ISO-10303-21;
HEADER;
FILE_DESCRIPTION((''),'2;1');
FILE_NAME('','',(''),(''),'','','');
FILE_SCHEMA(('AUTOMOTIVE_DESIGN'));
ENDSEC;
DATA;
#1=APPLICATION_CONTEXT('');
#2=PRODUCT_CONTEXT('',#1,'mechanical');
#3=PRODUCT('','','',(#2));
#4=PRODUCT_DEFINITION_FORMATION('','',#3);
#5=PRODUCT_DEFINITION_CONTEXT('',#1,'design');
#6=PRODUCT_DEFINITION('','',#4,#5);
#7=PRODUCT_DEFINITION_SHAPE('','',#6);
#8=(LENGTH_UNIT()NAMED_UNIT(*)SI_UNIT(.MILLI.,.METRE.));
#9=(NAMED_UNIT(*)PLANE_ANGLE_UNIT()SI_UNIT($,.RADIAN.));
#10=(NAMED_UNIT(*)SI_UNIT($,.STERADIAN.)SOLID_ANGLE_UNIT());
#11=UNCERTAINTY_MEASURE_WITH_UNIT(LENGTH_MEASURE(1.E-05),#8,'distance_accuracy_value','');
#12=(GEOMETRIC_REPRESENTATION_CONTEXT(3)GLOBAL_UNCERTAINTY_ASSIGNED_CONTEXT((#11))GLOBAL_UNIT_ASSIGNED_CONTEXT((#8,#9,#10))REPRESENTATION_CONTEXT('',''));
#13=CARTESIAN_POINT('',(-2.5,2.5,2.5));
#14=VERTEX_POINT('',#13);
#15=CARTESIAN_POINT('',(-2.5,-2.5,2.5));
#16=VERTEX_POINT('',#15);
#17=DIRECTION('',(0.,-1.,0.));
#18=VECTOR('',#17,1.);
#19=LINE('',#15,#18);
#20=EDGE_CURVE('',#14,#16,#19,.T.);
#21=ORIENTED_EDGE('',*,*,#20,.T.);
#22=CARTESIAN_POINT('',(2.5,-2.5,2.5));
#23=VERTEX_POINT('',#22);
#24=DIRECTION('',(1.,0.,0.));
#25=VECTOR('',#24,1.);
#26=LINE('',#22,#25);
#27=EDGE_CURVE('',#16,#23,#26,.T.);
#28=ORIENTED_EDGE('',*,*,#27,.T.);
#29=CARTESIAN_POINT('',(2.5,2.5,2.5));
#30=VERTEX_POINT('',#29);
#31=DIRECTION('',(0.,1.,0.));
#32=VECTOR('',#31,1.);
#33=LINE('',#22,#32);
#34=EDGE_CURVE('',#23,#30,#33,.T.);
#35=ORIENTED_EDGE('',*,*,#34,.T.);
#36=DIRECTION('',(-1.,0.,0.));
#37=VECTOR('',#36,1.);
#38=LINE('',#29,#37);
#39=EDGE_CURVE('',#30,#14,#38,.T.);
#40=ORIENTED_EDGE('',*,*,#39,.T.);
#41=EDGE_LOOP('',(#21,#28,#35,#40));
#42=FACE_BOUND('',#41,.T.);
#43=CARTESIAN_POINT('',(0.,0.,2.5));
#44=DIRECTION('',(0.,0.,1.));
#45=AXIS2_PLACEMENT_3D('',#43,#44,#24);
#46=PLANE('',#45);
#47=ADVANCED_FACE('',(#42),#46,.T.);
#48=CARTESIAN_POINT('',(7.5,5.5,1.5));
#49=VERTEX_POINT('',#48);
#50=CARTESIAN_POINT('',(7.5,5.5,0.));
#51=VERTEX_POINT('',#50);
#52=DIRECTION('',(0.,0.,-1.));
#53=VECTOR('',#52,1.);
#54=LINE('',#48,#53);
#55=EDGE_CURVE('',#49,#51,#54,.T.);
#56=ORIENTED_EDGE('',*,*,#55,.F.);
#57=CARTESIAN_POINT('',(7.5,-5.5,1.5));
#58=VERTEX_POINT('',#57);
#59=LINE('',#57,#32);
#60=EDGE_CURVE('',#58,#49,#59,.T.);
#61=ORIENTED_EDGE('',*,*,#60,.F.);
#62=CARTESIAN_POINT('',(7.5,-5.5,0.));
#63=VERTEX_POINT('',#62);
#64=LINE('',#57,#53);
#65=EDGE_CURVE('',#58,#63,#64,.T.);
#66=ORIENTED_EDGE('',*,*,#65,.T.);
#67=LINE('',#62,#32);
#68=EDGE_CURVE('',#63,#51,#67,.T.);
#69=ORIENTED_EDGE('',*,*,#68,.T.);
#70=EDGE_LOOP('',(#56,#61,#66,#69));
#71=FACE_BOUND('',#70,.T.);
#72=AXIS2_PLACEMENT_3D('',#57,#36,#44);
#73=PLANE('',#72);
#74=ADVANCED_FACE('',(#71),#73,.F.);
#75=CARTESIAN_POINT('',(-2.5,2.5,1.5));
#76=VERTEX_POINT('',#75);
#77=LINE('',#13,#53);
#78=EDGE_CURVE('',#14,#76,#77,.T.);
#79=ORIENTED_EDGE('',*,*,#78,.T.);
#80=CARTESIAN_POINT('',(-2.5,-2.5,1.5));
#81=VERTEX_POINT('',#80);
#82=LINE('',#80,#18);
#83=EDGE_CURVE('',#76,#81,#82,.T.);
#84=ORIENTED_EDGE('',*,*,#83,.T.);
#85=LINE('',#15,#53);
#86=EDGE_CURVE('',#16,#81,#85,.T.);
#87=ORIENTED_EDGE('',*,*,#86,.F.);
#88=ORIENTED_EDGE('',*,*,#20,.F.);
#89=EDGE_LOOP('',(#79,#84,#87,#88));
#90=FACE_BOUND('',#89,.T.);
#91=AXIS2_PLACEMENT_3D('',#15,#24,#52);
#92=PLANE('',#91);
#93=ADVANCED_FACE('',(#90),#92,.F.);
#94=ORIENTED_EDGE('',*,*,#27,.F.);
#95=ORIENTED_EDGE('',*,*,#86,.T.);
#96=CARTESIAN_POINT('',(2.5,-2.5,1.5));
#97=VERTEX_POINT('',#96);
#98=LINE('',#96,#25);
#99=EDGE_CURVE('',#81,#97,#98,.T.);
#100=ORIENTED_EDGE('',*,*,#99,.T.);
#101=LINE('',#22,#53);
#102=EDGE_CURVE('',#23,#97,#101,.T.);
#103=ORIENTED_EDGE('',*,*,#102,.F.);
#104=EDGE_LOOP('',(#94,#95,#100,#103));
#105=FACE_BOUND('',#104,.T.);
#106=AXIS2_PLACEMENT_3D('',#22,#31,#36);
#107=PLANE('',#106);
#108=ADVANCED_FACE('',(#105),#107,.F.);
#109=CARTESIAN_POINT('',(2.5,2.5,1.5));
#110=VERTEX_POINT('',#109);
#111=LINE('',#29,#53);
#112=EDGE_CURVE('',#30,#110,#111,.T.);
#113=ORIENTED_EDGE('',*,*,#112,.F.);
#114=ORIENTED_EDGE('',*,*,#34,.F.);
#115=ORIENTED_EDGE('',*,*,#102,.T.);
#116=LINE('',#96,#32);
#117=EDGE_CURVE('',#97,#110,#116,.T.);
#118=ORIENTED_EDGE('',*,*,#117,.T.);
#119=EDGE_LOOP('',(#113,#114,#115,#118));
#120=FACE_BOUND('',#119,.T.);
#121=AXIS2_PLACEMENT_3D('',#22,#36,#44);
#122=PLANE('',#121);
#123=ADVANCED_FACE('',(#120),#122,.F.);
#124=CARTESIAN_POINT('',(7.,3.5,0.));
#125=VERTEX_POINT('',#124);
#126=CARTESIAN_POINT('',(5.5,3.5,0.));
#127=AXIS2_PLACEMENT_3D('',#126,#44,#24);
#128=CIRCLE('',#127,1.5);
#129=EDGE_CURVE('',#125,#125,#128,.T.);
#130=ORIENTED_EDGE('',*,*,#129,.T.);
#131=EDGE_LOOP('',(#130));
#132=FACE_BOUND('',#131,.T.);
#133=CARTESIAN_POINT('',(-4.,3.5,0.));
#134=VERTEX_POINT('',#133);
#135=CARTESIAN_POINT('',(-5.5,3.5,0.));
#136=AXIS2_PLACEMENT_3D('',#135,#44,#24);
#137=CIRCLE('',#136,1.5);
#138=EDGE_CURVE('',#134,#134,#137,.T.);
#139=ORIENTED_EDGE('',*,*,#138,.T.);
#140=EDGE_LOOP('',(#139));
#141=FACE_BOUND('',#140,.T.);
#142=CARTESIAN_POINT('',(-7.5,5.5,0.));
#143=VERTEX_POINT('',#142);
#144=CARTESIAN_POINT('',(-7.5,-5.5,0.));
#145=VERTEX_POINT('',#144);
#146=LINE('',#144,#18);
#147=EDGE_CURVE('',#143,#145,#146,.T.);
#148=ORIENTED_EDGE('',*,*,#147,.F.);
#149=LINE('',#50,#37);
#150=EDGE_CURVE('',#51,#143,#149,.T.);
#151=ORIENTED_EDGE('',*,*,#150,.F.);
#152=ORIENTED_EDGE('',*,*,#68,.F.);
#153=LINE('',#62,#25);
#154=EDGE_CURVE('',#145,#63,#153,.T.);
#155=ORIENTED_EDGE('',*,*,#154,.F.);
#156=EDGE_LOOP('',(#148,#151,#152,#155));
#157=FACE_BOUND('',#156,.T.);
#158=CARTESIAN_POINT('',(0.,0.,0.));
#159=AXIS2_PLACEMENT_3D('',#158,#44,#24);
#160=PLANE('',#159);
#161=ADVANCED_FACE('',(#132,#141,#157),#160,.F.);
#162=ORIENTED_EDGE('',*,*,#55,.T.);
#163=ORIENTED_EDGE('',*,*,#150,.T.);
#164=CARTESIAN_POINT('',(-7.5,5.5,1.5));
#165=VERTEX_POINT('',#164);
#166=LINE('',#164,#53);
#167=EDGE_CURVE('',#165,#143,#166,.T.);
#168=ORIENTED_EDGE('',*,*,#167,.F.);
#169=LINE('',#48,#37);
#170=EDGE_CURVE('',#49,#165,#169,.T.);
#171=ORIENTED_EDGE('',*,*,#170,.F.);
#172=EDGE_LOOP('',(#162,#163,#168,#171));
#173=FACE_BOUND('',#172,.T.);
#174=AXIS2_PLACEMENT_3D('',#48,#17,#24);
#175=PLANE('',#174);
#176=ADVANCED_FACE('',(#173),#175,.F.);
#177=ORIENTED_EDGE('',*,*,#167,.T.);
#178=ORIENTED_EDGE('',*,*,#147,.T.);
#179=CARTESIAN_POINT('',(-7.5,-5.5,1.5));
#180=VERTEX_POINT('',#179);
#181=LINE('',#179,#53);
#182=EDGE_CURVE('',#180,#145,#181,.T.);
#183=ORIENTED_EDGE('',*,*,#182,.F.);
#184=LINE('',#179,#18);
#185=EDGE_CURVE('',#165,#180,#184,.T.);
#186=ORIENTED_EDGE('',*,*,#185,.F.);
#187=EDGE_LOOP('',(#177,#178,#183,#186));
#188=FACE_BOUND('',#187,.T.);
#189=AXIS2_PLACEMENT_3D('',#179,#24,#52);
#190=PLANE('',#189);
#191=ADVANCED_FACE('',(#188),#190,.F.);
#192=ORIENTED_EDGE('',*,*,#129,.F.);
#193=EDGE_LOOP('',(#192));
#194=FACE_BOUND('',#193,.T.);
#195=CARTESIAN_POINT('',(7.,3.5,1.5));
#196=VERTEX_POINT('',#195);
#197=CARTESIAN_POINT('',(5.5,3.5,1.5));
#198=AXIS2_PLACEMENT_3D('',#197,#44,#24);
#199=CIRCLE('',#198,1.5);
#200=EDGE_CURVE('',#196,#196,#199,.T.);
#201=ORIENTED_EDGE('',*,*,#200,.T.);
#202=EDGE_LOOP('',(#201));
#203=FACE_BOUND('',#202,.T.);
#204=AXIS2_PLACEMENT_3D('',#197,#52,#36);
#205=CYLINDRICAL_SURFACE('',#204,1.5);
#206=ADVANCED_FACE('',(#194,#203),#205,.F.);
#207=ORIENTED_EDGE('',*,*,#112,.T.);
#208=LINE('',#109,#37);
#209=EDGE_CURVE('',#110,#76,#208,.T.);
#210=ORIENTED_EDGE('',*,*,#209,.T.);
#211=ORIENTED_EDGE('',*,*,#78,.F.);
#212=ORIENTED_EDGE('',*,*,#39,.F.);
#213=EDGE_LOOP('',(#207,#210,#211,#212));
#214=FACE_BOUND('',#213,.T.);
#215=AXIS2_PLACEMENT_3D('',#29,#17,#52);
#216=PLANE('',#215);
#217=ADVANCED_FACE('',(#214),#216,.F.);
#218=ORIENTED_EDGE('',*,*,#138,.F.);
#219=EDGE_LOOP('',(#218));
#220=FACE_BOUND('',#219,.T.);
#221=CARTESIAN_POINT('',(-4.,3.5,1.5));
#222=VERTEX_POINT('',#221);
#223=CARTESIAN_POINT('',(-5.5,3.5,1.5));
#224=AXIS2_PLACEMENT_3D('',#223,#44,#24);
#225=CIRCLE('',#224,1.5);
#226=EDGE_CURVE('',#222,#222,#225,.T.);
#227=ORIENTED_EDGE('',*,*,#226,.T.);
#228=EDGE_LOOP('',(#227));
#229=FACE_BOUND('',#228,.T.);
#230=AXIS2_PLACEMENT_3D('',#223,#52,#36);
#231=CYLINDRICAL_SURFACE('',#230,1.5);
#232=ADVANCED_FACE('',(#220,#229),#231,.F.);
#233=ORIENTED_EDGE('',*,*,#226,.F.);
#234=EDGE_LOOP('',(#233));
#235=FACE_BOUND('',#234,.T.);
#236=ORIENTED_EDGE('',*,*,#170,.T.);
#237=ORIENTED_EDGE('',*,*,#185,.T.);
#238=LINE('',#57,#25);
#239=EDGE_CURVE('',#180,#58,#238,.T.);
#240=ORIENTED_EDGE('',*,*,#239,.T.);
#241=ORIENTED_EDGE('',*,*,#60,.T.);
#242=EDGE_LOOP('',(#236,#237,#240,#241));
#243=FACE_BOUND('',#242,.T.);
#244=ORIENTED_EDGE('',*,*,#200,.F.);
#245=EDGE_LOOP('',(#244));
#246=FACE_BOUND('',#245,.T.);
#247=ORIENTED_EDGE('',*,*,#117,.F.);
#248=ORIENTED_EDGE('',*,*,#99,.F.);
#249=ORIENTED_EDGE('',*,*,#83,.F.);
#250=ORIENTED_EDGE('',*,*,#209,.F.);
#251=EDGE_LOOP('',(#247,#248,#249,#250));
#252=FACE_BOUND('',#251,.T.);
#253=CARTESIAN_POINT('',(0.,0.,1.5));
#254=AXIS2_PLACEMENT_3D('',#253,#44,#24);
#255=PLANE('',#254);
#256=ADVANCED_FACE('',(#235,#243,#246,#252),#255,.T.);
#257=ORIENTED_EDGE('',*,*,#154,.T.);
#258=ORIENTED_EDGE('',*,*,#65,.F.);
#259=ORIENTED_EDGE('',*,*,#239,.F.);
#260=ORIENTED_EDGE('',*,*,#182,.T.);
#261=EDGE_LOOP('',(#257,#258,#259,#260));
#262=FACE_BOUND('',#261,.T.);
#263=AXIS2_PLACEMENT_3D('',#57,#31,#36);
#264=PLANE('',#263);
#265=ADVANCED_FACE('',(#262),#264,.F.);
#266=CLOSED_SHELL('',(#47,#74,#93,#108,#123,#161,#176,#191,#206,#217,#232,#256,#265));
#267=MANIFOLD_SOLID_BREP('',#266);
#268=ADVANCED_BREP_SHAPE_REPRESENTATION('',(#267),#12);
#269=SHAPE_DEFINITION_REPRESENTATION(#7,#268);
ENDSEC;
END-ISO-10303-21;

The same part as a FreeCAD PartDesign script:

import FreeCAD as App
import Part
import Sketcher
Q = App.Units.Quantity

doc = App.newDocument("Part")
params = doc.addObject("Spreadsheet::Sheet", "Params")
for row, (alias, value) in enumerate([
    ("sketch1_diameter", "3 mm"),
    ("sketch1_width", "15 mm"),
    ("sketch1_height", "11 mm"),
    ("pad1_length", "1.5 mm"),
    ("sketch2_width", "5 mm"),
    ("pad2_length", "1 mm"),
], start=1):
    params.set(f"A{row}", alias)
    params.set(f"B{row}", "=" + value)
    params.setAlias(f"B{row}", alias)

body = doc.addObject("PartDesign::Body", "Body")

# Sketch on XY plane
sketch1 = body.newObject("Sketcher::SketchObject", "Sketch")
sketch1.AttachmentSupport = (doc.getObject("XY_Plane"), [""])
sketch1.MapMode = "FlatFace"
sketch1.addGeometry(Part.LineSegment(App.Vector(-7.5, 5.5, 0), App.Vector(-7.5, -5.5, 0)), False)
sketch1.addGeometry(Part.LineSegment(App.Vector(-7.5, -5.5, 0), App.Vector(7.5, -5.5, 0)), False)
sketch1.addGeometry(Part.LineSegment(App.Vector(7.5, -5.5, 0), App.Vector(7.5, 5.5, 0)), False)
sketch1.addGeometry(Part.LineSegment(App.Vector(7.5, 5.5, 0), App.Vector(-7.5, 5.5, 0)), False)
sketch1.addGeometry(Part.Circle(App.Vector(-5.5, 3.5, 0), App.Vector(0, 0, 1), 1.5), False)
sketch1.addGeometry(Part.Circle(App.Vector(5.5, 3.5, 0), App.Vector(0, 0, 1), 1.5), False)
sketch1.addConstraint(Sketcher.Constraint("Coincident", 0, 2, 1, 1))
sketch1.addConstraint(Sketcher.Constraint("Coincident", 1, 2, 2, 1))
sketch1.addConstraint(Sketcher.Constraint("Coincident", 2, 2, 3, 1))
sketch1.addConstraint(Sketcher.Constraint("Coincident", 3, 2, 0, 1))
sketch1.addConstraint(Sketcher.Constraint("Vertical", 0))
sketch1.addConstraint(Sketcher.Constraint("Horizontal", 1))
sketch1.addConstraint(Sketcher.Constraint("Vertical", 2))
sketch1.addConstraint(Sketcher.Constraint("Horizontal", 3))
sketch1.addConstraint(Sketcher.Constraint("Equal", 4, 5))
sketch1.addConstraint(Sketcher.Constraint("Symmetric", 0, 2, 2, 2, -1, 1))
sketch1.addConstraint(Sketcher.Constraint("Symmetric", 4, 3, 5, 3, -2))
sketch1.addConstraint(Sketcher.Constraint("Diameter", 4, Q("3 mm")))
sketch1.addConstraint(Sketcher.Constraint("DistanceX", 1, 1, 1, 2, Q("15 mm")))
sketch1.addConstraint(Sketcher.Constraint("DistanceY", 0, 2, 0, 1, Q("11 mm")))
sketch1.addConstraint(Sketcher.Constraint("DistanceX", 4, 3, 5, 3, Q("11 mm")))
sketch1.addConstraint(Sketcher.Constraint("DistanceY", 0, 2, 4, 3, Q("9 mm")))
sketch1.setExpression("Constraints[11]", "Params.sketch1_diameter")
sketch1.setExpression("Constraints[12]", "Params.sketch1_width")
sketch1.setExpression("Constraints[13]", "Params.sketch1_height")
pad1 = body.newObject("PartDesign::Pad", "Pad")
pad1.Profile = sketch1
pad1.setExpression("Length", "Params.pad1_length")

# Sketch on XY plane
sketch2 = body.newObject("Sketcher::SketchObject", "Sketch001")
sketch2.AttachmentSupport = (doc.getObject("XY_Plane"), [""])
sketch2.MapMode = "FlatFace"
sketch2.AttachmentOffset = App.Placement(App.Vector(0, 0, 1.5), App.Rotation())
sketch2.addGeometry(Part.LineSegment(App.Vector(-2, 2, 0), App.Vector(-2, -2, 0)), False)
sketch2.addGeometry(Part.LineSegment(App.Vector(-2, -2, 0), App.Vector(2, -2, 0)), False)
sketch2.addGeometry(Part.LineSegment(App.Vector(2, -2, 0), App.Vector(2, 2, 0)), False)
sketch2.addGeometry(Part.LineSegment(App.Vector(2, 2, 0), App.Vector(-2, 2, 0)), False)
sketch2.addConstraint(Sketcher.Constraint("Coincident", 0, 2, 1, 1))
sketch2.addConstraint(Sketcher.Constraint("Coincident", 1, 2, 2, 1))
sketch2.addConstraint(Sketcher.Constraint("Coincident", 2, 2, 3, 1))
sketch2.addConstraint(Sketcher.Constraint("Coincident", 3, 2, 0, 1))
sketch2.addConstraint(Sketcher.Constraint("Vertical", 0))
sketch2.addConstraint(Sketcher.Constraint("Horizontal", 1))
sketch2.addConstraint(Sketcher.Constraint("Vertical", 2))
sketch2.addConstraint(Sketcher.Constraint("Horizontal", 3))
sketch2.addConstraint(Sketcher.Constraint("Symmetric", 0, 2, 2, 2, -1, 1))
sketch2.addConstraint(Sketcher.Constraint("Equal", 3, 0))
sketch2.addConstraint(Sketcher.Constraint("DistanceX", 1, 1, 1, 2, Q("5 mm")))
sketch2.setExpression("Constraints[10]", "Params.sketch2_width")
pad2 = body.newObject("PartDesign::Pad", "Pad001")
pad2.Profile = sketch2
pad2.setExpression("Length", "Params.pad2_length")

doc.recompute()
